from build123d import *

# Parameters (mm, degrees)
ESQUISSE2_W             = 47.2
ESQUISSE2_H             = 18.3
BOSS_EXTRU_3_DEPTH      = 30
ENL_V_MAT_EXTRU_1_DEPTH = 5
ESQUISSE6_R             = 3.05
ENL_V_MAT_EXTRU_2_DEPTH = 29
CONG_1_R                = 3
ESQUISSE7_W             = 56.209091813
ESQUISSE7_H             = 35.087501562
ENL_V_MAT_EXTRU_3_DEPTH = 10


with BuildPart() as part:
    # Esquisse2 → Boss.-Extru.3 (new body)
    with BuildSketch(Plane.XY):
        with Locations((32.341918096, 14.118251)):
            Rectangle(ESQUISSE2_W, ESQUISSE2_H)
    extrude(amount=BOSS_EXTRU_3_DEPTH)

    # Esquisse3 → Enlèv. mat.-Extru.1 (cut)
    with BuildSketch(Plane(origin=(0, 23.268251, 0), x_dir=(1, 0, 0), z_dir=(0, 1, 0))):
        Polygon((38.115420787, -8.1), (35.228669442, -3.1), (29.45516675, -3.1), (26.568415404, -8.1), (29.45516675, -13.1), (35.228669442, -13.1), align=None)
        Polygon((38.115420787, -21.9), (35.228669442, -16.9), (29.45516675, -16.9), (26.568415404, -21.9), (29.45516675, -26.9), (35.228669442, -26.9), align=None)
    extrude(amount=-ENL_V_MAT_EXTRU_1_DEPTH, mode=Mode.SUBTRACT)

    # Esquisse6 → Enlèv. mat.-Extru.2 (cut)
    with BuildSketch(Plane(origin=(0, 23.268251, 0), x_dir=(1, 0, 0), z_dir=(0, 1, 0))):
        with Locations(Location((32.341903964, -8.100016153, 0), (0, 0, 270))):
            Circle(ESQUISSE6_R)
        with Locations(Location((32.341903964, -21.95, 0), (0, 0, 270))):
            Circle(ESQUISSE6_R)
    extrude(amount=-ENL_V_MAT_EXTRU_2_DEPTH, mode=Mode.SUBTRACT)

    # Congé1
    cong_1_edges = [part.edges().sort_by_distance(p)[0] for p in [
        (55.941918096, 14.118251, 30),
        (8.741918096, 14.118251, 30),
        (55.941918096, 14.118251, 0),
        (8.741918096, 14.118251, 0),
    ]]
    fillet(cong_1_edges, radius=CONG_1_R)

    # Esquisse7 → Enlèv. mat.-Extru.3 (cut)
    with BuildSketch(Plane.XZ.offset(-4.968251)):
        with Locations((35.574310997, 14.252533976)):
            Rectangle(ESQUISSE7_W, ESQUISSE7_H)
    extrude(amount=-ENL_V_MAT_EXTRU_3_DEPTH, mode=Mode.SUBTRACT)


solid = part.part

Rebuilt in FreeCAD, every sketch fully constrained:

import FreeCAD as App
import Part
import Sketcher
Q = App.Units.Quantity


def edges_at(feature, points):
    """Names of the edges that pass closest to the given points."""
    edges = feature.Shape.Edges
    near = lambda p: min(range(len(edges)), key=lambda i: edges[i].distToShape(Part.Vertex(*p))[0])
    return sorted({f"Edge{near(p) + 1}" for p in points})


def add_polygon(sketch, points):
    """Adds a closed chain of lines whose ends are joined by coincident constraints."""
    first, n = sketch.GeometryCount, len(points)
    for a, b in zip(points, points[1:] + points[:1]):
        sketch.addGeometry(Part.LineSegment(App.Vector(*a, 0), App.Vector(*b, 0)), False)
    for i in range(n):
        sketch.addConstraint(Sketcher.Constraint("Coincident", first + i, 2, first + (i + 1) % n, 1))

doc = App.newDocument("Part")
body = doc.addObject("PartDesign::Body", "Body")

sketch1 = body.newObject("Sketcher::SketchObject", "Sketch")
sketch1.AttachmentSupport = (doc.getObject("XY_Plane"), [""])
sketch1.MapMode = "FlatFace"
add_polygon(sketch1, [(9, 23), (9, 5), (56, 5), (56, 23)])
sketch1.addConstraint([
    Sketcher.Constraint("Vertical", 0),
    Sketcher.Constraint("Horizontal", 1),
    Sketcher.Constraint("Vertical", 2),
    Sketcher.Constraint("Horizontal", 3),
    Sketcher.Constraint("DistanceX", 1, 1, 1, 2, 47.2),
    Sketcher.Constraint("DistanceY", 0, 2, 0, 1, 18.3),
    Sketcher.Constraint("DistanceX", -1, 1, 0, 2, 8.741918),
    Sketcher.Constraint("DistanceY", -1, 1, 0, 2, 4.968251),
])
pad1 = body.newObject("PartDesign::Pad", "Pad")
pad1.Profile = sketch1
pad1.Length = 30

sketch2 = body.newObject("Sketcher::SketchObject", "Sketch001")
sketch2.AttachmentSupport = (doc.getObject("XZ_Plane"), [""])
sketch2.MapMode = "FlatFace"
sketch2.AttachmentOffset = App.Placement(App.Vector(0, 0, -23.268251), App.Rotation())
add_polygon(sketch2, [(38, 8), (35, 3), (29, 3), (27, 8), (29, 13), (35, 13)])
add_polygon(sketch2, [(38, 22), (35, 17), (29, 17), (27, 22), (29, 27), (35, 27)])
sketch2.addConstraint([
    Sketcher.Constraint("Horizontal", 1),
    Sketcher.Constraint("Horizontal", 4),
    Sketcher.Constraint("Horizontal", 7),
    Sketcher.Constraint("Horizontal", 10),
    Sketcher.Constraint("Parallel", 0, 3),
    Sketcher.Constraint("Parallel", 2, 5),
    Sketcher.Constraint("Parallel", 3, 6),
    Sketcher.Constraint("Parallel", 5, 8),
    Sketcher.Constraint("Parallel", 6, 9),
    Sketcher.Constraint("Parallel", 8, 11),
    Sketcher.Constraint("Horizontal", 2, 2, 5, 2),
    Sketcher.Constraint("Horizontal", 8, 2, 11, 2),
    Sketcher.Constraint("Vertical", 1, 2, 3, 2),
    Sketcher.Constraint("Vertical", 0, 2, 4, 2),
    Sketcher.Constraint("Vertical", 4, 2, 6, 2),
    Sketcher.Constraint("Vertical", 3, 2, 7, 2),
    Sketcher.Constraint("Vertical", 2, 2, 8, 2),
    Sketcher.Constraint("Vertical", 7, 2, 9, 2),
    Sketcher.Constraint("Angle", 0, Q("-120 deg")),
    Sketcher.Constraint("DistanceY", 1, 2, 2, 2, 5.0),
    Sketcher.Constraint("DistanceY", -1, 1, 0, 2, 3.1),
    Sketcher.Constraint("DistanceY", -1, 1, 6, 2, 16.9),
    Sketcher.Constraint("DistanceX", 1, 2, 1, 1, 5.773503),
    Sketcher.Constraint("DistanceX", -1, 1, 0, 2, 35.228669),
])
pocket1 = body.newObject("PartDesign::Pocket", "Pocket")
pocket1.Profile = sketch2
pocket1.Length = 5
pocket1.Reversed = True

sketch3 = body.newObject("Sketcher::SketchObject", "Sketch002")
sketch3.AttachmentSupport = (doc.getObject("XZ_Plane"), [""])
sketch3.MapMode = "FlatFace"
sketch3.AttachmentOffset = App.Placement(App.Vector(0, 0, -23.268251), App.Rotation())
sketch3.addGeometry([
    Part.Circle(App.Vector(32.3, 8.1, 0), App.Vector(0, 0, 1), 3),
    Part.Circle(App.Vector(32.3, 21.9, 0), App.Vector(0, 0, 1), 3),
], False)
sketch3.addConstraint([
    Sketcher.Constraint("Equal", 0, 1),
    Sketcher.Constraint("Vertical", 0, 3, 1, 3),
    Sketcher.Constraint("Diameter", 0, 6.1),
    Sketcher.Constraint("DistanceY", -1, 1, 1, 3, 21.95),
    Sketcher.Constraint("DistanceX", -1, 1, 0, 3, 32.341904),
    Sketcher.Constraint("DistanceY", -1, 1, 0, 3, 8.100016),
])
pocket2 = body.newObject("PartDesign::Pocket", "Pocket001")
pocket2.Profile = sketch3
pocket2.Length = 29
pocket2.Reversed = True
doc.recompute()

fillet = body.newObject("PartDesign::Fillet", "Fillet")
fillet.Base = (pocket2, edges_at(pocket2, [
    (55.942, 14.118, 30),
    (8.742, 14.118, 30),
    (55.942, 14.118, 0),
    (8.742, 14.118, 0),
]))
fillet.Radius = 3

sketch4 = body.newObject("Sketcher::SketchObject", "Sketch003")
sketch4.AttachmentSupport = (doc.getObject("XZ_Plane"), [""])
sketch4.MapMode = "FlatFace"
sketch4.AttachmentOffset = App.Placement(App.Vector(0, 0, -4.968251), App.Rotation())
add_polygon(sketch4, [(7, 32), (7, -3), (64, -3), (64, 32)])
sketch4.addConstraint([
    Sketcher.Constraint("Vertical", 0),
    Sketcher.Constraint("Horizontal", 1),
    Sketcher.Constraint("Vertical", 2),
    Sketcher.Constraint("Horizontal", 3),
    Sketcher.Constraint("DistanceY", 0, 2, 0, 1, 35.087502),
    Sketcher.Constraint("DistanceX", 1, 1, 1, 2, 56.209092),
    Sketcher.Constraint("DistanceX", -1, 1, 0, 2, 7.469765),
    Sketcher.Constraint("DistanceY", 0, 2, -1, 1, 3.291217),
])
pocket3 = body.newObject("PartDesign::Pocket", "Pocket002")
pocket3.Profile = sketch4
pocket3.Length = 10

doc.recompute()
